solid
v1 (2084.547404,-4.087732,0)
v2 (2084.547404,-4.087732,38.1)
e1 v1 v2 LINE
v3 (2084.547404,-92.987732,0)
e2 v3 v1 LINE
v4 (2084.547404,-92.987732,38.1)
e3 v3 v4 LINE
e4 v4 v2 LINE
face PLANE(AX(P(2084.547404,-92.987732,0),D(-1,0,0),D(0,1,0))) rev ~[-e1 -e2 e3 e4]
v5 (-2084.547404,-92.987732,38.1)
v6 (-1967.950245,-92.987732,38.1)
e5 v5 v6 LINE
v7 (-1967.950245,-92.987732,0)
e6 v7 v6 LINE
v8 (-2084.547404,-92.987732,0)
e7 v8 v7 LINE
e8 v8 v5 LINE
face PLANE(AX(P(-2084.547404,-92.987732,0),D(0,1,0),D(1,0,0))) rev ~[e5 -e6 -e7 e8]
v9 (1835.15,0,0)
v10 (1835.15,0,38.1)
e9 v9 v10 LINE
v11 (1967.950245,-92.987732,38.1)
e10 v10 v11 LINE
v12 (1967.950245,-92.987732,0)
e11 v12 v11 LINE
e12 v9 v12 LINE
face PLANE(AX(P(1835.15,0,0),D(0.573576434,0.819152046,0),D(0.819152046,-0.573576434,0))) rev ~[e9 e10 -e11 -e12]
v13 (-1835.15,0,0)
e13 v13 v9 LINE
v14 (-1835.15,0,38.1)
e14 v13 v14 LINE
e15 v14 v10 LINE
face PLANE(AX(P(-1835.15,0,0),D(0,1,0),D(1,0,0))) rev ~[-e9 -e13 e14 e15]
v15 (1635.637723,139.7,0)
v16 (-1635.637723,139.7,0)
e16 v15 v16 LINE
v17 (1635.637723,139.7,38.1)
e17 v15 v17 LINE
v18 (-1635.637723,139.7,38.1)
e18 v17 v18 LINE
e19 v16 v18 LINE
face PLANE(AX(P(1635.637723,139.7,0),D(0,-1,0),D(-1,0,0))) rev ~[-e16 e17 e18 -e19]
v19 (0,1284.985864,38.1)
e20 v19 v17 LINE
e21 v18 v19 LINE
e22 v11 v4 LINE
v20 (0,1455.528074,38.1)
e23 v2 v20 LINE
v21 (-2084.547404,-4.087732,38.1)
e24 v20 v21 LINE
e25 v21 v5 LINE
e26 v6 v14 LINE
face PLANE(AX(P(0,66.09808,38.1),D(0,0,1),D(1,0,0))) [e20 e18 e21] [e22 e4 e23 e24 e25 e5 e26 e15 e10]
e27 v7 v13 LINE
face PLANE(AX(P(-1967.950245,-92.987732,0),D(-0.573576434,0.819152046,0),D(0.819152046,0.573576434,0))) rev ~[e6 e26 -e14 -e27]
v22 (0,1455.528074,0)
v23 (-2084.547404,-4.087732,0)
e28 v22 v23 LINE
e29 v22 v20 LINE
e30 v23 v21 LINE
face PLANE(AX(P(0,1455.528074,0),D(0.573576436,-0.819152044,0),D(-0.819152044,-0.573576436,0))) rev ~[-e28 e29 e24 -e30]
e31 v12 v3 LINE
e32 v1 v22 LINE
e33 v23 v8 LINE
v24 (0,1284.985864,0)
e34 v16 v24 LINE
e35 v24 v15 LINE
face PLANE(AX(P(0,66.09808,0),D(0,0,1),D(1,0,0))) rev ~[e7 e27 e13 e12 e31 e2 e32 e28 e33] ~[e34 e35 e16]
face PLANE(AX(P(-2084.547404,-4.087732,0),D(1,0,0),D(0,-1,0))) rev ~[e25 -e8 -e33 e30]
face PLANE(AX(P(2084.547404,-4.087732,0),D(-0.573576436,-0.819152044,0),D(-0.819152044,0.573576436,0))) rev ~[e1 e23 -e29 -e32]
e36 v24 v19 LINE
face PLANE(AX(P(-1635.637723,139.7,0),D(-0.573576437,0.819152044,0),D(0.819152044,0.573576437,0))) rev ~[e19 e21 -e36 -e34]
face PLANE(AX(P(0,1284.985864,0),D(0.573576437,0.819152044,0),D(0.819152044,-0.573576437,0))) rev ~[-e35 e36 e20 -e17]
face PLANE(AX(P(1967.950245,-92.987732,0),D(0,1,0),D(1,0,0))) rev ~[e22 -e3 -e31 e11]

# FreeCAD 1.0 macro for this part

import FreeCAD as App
import Part
import Sketcher

V = App.Vector
Q = App.Units.Quantity


def add_polygon(sketch, points):
    """Adds a closed chain of lines whose ends are joined by coincident constraints."""
    first, n = sketch.GeometryCount, len(points)
    for a, b in zip(points, points[1:] + points[:1]):
        sketch.addGeometry(Part.LineSegment(App.Vector(*a, 0), App.Vector(*b, 0)), False)
    for i in range(n):
        sketch.addConstraint(Sketcher.Constraint("Coincident", first + i, 2, first + (i + 1) % n, 1))

doc = App.newDocument("Part")
body = doc.addObject("PartDesign::Body", "Body")

sketch1 = body.newObject("Sketcher::SketchObject", "Sketch")
sketch1.AttachmentSupport = (doc.getObject("XY_Plane"), [""])
sketch1.MapMode = "FlatFace"
add_polygon(sketch1, [(-1835.15, 0), (1835.15, 0), (1967.950245, -92.987732), (2084.547404, -92.987732), (2084.547404, -4.087732), (0, 1455.528074), (-2084.547404, -4.087732), (-2084.547404, -92.987732), (-1967.950245, -92.987732)])
add_polygon(sketch1, [(1635.637723, 139.7), (-1635.637723, 139.7), (0, 1284.985864)])
sketch1.addConstraint(Sketcher.Constraint("Horizontal", 0))
sketch1.addConstraint(Sketcher.Constraint("Horizontal", 2))
sketch1.addConstraint(Sketcher.Constraint("Vertical", 3))
sketch1.addConstraint(Sketcher.Constraint("Vertical", 6))
sketch1.addConstraint(Sketcher.Constraint("Horizontal", 7))
sketch1.addConstraint(Sketcher.Constraint("Horizontal", 9))
sketch1.addConstraint(Sketcher.Constraint("Symmetric", 0, 2, 8, 2, -1, 1))
sketch1.addConstraint(Sketcher.Constraint("Symmetric", 3, 2, 5, 2, -2))
sketch1.addConstraint(Sketcher.Constraint("Symmetric", 1, 2, 7, 2, -2))
sketch1.addConstraint(Sketcher.Constraint("PointOnObject", 4, 2, -2))
sketch1.addConstraint(Sketcher.Constraint("PointOnObject", 10, 2, -2))
sketch1.addConstraint(Sketcher.Constraint("Parallel", 1, 4))
sketch1.addConstraint(Sketcher.Constraint("Parallel", 8, 10))
sketch1.addConstraint(Sketcher.Constraint("Parallel", 4, 11))
sketch1.addConstraint(Sketcher.Constraint("DistanceX", 0, 1, 0, 2, Q("144.5 in")))
sketch1.addConstraint(Sketcher.Constraint("DistanceY", 3, 1, 3, 2, Q("3.5 in")))
sketch1.addConstraint(Sketcher.Constraint("Angle", 1, Q("-35 deg")))
sketch1.addConstraint(Sketcher.Constraint("DistanceY", -1, 1, 9, 2, Q("5.5 in")))
sketch1.addConstraint(Sketcher.Constraint("Distance", 4, Q("100.1875 in")))
sketch1.addConstraint(Sketcher.Constraint("DistanceX", 2, 1, 2, 2, Q("116.597159 mm")))
sketch1.addConstraint(Sketcher.Constraint("Distance", 10, Q("1996.744969 mm")))
pad1 = body.newObject("PartDesign::Pad", "Pad")
pad1.Profile = sketch1
pad1.Length = Q("1.5 in")

doc.recompute()
